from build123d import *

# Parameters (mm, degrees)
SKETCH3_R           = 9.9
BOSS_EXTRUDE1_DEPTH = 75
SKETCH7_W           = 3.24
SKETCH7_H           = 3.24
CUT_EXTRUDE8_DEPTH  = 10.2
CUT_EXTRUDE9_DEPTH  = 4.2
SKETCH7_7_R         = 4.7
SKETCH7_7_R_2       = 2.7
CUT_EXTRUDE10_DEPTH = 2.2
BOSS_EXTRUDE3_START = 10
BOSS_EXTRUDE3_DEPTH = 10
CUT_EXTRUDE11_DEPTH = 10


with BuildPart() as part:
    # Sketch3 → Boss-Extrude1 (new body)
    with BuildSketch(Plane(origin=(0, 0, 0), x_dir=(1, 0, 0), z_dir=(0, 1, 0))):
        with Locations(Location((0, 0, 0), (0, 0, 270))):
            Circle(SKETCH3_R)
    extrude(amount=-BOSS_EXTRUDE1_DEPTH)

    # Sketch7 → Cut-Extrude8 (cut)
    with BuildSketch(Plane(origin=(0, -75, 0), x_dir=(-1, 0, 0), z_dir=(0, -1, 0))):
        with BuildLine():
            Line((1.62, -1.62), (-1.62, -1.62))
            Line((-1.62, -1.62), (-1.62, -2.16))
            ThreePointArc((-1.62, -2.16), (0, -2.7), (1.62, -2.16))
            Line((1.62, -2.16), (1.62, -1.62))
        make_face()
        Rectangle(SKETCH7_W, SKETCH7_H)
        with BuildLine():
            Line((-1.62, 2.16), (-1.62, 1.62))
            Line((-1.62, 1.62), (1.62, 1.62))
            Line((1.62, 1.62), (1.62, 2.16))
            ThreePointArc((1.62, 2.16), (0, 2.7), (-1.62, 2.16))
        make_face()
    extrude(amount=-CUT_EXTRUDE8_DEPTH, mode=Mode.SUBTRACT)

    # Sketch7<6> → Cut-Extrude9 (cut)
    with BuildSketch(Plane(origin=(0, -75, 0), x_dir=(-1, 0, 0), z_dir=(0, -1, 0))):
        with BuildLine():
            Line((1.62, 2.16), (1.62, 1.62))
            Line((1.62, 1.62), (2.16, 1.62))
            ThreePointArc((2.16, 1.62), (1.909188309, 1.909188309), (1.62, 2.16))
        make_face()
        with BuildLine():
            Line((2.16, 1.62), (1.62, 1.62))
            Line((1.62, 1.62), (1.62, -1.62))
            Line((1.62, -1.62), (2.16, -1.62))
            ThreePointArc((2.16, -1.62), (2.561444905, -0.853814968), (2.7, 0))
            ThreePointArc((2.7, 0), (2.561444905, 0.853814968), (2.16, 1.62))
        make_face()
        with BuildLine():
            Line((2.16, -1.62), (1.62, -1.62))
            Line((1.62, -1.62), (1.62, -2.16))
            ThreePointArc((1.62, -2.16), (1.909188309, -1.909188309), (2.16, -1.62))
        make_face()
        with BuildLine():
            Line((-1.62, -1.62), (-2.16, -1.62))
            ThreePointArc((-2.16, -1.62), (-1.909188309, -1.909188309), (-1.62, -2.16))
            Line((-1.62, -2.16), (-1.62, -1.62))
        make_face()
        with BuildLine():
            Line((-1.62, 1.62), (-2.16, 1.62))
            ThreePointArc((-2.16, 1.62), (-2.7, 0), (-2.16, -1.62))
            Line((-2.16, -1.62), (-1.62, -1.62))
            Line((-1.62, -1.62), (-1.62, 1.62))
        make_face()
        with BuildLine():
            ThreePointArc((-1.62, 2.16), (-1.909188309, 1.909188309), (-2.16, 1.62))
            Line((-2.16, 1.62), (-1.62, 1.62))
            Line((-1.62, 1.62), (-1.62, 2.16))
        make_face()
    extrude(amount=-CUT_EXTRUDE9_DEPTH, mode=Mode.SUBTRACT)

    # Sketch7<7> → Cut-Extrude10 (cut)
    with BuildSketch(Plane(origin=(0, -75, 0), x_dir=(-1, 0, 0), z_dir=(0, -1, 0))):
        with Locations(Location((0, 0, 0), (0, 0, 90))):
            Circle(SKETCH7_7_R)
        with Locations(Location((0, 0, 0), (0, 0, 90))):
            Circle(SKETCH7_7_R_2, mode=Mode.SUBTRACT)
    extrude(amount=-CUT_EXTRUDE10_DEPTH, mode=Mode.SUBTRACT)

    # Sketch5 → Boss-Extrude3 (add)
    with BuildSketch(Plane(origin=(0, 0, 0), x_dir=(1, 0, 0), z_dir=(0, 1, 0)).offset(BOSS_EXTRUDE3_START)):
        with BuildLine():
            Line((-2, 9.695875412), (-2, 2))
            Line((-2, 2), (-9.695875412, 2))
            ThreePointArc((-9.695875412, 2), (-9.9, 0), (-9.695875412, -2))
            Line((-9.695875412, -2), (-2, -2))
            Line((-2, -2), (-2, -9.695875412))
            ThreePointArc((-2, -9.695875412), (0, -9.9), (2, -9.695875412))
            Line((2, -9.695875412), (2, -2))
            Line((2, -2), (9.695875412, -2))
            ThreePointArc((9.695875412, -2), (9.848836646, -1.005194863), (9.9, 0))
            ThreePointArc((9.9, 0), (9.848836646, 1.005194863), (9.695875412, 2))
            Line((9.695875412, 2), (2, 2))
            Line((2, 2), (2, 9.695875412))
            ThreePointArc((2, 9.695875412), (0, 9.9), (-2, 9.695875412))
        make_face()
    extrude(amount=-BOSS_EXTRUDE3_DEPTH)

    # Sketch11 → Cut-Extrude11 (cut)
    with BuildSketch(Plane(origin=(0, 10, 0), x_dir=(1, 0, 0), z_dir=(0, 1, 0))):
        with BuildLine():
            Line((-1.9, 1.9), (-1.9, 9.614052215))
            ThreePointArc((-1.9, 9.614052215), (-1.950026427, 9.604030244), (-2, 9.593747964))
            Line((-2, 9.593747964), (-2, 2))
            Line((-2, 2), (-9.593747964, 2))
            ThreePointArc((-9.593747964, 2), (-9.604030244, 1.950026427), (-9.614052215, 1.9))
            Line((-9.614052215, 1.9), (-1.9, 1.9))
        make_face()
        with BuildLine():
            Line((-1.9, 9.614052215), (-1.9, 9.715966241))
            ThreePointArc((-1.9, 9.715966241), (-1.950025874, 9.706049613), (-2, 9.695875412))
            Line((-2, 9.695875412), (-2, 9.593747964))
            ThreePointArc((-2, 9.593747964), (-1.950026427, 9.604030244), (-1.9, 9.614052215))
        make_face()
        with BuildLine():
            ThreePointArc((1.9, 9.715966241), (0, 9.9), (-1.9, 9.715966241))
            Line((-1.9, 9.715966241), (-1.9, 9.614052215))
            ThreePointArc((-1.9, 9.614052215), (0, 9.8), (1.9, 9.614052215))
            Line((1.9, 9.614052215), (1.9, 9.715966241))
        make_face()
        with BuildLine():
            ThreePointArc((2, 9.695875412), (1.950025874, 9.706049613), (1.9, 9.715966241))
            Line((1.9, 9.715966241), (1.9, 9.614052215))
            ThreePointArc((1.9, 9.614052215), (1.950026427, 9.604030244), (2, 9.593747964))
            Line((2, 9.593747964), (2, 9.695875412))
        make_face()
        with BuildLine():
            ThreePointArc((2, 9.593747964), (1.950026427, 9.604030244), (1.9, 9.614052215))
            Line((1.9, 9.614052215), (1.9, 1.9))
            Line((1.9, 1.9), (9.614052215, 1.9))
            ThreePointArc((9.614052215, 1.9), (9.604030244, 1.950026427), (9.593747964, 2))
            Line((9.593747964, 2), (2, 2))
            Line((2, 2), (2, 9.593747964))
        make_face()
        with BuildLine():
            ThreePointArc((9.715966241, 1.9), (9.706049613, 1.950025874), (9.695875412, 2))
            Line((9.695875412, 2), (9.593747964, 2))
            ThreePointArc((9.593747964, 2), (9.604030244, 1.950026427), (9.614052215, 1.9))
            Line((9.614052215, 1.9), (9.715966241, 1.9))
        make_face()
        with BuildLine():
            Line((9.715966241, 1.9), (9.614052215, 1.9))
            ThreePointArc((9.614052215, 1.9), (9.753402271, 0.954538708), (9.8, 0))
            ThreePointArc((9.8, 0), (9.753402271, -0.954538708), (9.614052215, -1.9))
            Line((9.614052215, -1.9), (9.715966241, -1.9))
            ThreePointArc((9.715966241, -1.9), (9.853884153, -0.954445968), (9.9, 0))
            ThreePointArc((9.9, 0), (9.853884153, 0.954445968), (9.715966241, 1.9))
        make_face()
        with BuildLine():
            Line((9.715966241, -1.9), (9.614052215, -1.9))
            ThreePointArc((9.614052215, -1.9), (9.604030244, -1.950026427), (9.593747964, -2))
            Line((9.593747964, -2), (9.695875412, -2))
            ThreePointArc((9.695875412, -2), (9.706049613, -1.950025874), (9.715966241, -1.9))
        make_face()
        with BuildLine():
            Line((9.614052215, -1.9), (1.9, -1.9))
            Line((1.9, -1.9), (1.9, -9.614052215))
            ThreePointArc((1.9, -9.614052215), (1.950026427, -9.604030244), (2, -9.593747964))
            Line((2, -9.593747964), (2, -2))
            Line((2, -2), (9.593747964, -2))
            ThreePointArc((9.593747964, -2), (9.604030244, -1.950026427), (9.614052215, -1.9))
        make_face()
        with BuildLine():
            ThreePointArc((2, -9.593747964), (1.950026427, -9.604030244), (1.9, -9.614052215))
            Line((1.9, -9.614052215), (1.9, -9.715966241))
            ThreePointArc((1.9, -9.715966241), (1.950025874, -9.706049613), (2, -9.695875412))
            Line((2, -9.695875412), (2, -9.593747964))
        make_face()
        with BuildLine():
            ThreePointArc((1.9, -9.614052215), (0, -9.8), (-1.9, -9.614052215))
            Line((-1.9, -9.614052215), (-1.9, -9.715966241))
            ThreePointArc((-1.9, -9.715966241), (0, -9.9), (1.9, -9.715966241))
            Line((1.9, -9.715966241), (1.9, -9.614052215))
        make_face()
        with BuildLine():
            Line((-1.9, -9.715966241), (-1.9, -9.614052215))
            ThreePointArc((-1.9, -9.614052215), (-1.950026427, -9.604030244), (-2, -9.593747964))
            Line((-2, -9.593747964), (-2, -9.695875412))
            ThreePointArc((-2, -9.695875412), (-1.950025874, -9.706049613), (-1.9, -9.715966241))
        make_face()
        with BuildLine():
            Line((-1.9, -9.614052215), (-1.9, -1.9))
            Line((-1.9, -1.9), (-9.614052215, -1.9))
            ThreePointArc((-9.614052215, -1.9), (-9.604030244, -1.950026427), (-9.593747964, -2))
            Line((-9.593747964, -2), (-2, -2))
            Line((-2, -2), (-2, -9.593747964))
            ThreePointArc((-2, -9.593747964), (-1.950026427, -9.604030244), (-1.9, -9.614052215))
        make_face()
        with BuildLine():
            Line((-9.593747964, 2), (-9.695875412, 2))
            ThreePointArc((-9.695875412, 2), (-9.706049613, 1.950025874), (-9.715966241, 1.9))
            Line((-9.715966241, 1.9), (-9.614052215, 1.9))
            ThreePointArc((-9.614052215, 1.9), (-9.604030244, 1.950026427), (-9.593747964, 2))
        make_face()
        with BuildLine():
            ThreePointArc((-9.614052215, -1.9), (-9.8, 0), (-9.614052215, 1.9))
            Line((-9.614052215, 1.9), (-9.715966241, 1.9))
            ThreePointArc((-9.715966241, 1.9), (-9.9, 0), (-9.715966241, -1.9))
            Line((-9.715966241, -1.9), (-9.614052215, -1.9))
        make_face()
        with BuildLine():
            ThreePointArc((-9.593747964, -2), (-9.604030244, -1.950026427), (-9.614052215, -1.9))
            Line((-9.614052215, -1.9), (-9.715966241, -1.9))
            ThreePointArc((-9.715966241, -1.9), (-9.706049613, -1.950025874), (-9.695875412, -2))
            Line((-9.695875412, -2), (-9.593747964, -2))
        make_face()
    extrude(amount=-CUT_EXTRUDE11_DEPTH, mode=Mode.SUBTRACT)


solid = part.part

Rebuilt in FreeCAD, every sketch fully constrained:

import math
import FreeCAD as App
import Part
import Sketcher
from FreeCAD import Vector
Q = App.Units.Quantity

doc = App.newDocument("Part")
params = doc.addObject("Spreadsheet::Sheet", "Params")
for row, (alias, value) in enumerate([
    ("sketch1_diameter", "19.8 mm"),
    ("pad1_length", "75 mm"),
    ("sketch2_radius", "2.7 mm"),
    ("sketch2_height", "4.32 mm"),
    ("pocket1_length", "10.2 mm"),
    ("sketch3_radius", "2.7 mm"),
    ("sketch3_height", "4.32 mm"),
    ("pocket2_length", "4.2 mm"),
    ("sketch4_diameter", "9.4 mm"),
    ("sketch4_diameter2", "5.4 mm"),
    ("pocket3_length", "2.2 mm"),
    ("sketch5_radius", "9.9 mm"),
    ("pad2_length", "10 mm"),
    ("sketch6_radius", "9.9 mm"),
    ("sketch6_radius2", "9.8 mm"),
    ("pocket4_length", "10 mm"),
], start=1):
    params.set(f"A{row}", alias)
    params.set(f"B{row}", "=" + value)
    params.setAlias(f"B{row}", alias)

body = doc.addObject("PartDesign::Body", "Body")

# Sketch on XZ plane
sketch1 = body.newObject("Sketcher::SketchObject", "Sketch")
sketch1.AttachmentSupport = (doc.getObject("XZ_Plane"), [""])
sketch1.MapMode = "FlatFace"
sketch1.addGeometry(Part.Circle(Vector(0, 0, 0), Vector(0, 0, 1), 10), False)
sketch1.addConstraint(Sketcher.Constraint("Coincident", 0, 3, -1, 1))
sketch1.addConstraint(Sketcher.Constraint("Diameter", 0, Q("19.8 mm")))
sketch1.setExpression("Constraints[1]", "Params.sketch1_diameter")
pad1 = body.newObject("PartDesign::Pad", "Pad")
pad1.Profile = sketch1
pad1.setExpression("Length", "Params.pad1_length")

# Sketch on XZ plane
sketch2 = body.newObject("Sketcher::SketchObject", "Sketch001")
sketch2.AttachmentSupport = (doc.getObject("XZ_Plane"), [""])
sketch2.MapMode = "FlatFace"
sketch2.AttachmentOffset = App.Placement(Vector(0, 0, 75), App.Rotation())
sketch2.addGeometry(Part.ArcOfCircle(Part.Circle(Vector(0, 0, 0), Vector(0, 0, 1), 2.7), math.radians(53), math.radians(127)), False)
sketch2.addGeometry(Part.LineSegment(Vector(-1.6, 2.2, 0), Vector(-1.6, -2.2, 0)), False)
sketch2.addGeometry(Part.ArcOfCircle(Part.Circle(Vector(0, 0, 0), Vector(0, 0, 1), 2.7), math.radians(-127), math.radians(-53)), False)
sketch2.addGeometry(Part.LineSegment(Vector(1.6, -2.2, 0), Vector(1.6, 2.2, 0)), False)
sketch2.addConstraint(Sketcher.Constraint("Coincident", 0, 2, 1, 1))
sketch2.addConstraint(Sketcher.Constraint("Coincident", 1, 2, 2, 1))
sketch2.addConstraint(Sketcher.Constraint("Coincident", 2, 2, 3, 1))
sketch2.addConstraint(Sketcher.Constraint("Coincident", 3, 2, 0, 1))
sketch2.addConstraint(Sketcher.Constraint("Vertical", 1))
sketch2.addConstraint(Sketcher.Constraint("Vertical", 3))
sketch2.addConstraint(Sketcher.Constraint("Coincident", 0, 3, -1, 1))
sketch2.addConstraint(Sketcher.Constraint("Coincident", 2, 3, -1, 1))
sketch2.addConstraint(Sketcher.Constraint("Equal", 0, 2))
sketch2.addConstraint(Sketcher.Constraint("Horizontal", 1, 2, 2, 2))
sketch2.addConstraint(Sketcher.Constraint("Radius", 0, Q("2.7 mm")))
sketch2.addConstraint(Sketcher.Constraint("DistanceY", 1, 2, 1, 1, Q("4.32 mm")))
sketch2.setExpression("Constraints[10]", "Params.sketch2_radius")
sketch2.setExpression("Constraints[11]", "Params.sketch2_height")
pocket1 = body.newObject("PartDesign::Pocket", "Pocket")
pocket1.Profile = sketch2
pocket1.setExpression("Length", "Params.pocket1_length")

# Sketch on XZ plane
sketch3 = body.newObject("Sketcher::SketchObject", "Sketch002")
sketch3.AttachmentSupport = (doc.getObject("XZ_Plane"), [""])
sketch3.MapMode = "FlatFace"
sketch3.AttachmentOffset = App.Placement(Vector(0, 0, 75), App.Rotation())
sketch3.addGeometry(Part.LineSegment(Vector(-1.6, -2.2, 0), Vector(-1.6, 2.2, 0)), False)
sketch3.addGeometry(Part.ArcOfCircle(Part.Circle(Vector(0, 0, 0), Vector(0, 0, 1), 2.7), math.radians(126.87), math.radians(143.13)), False)
sketch3.addGeometry(Part.ArcOfCircle(Part.Circle(Vector(0, 0, 0), Vector(0, 0, 1), 2.7), math.radians(143), math.radians(180)), False)
sketch3.addGeometry(Part.ArcOfCircle(Part.Circle(Vector(0, 0, 0), Vector(0, 0, 1), 2.7), math.radians(180), math.radians(217)), False)
sketch3.addGeometry(Part.ArcOfCircle(Part.Circle(Vector(0, 0, 0), Vector(0, 0, 1), 2.7), math.radians(-143.13), math.radians(-126.87)), False)
sketch3.addGeometry(Part.ArcOfCircle(Part.Circle(Vector(0, 0, 0), Vector(0, 0, 1), 2.7), math.radians(36.87), math.radians(53.13)), False)
sketch3.addGeometry(Part.LineSegment(Vector(1.6, 2.2, 0), Vector(1.6, -2.2, 0)), False)
sketch3.addGeometry(Part.ArcOfCircle(Part.Circle(Vector(0, 0, 0), Vector(0, 0, 1), 2.7), math.radians(-53.13), math.radians(-36.87)), False)
sketch3.addGeometry(Part.ArcOfCircle(Part.Circle(Vector(0, 0, 0), Vector(0, 0, 1), 2.7), math.radians(-37), math.radians(37)), False)
sketch3.addConstraint(Sketcher.Constraint("Coincident", 0, 2, 1, 1))
sketch3.addConstraint(Sketcher.Constraint("Tangent", 1, 2, 2, 1))
sketch3.addConstraint(Sketcher.Constraint("Tangent", 2, 2, 3, 1))
sketch3.addConstraint(Sketcher.Constraint("Tangent", 3, 2, 4, 1))
sketch3.addConstraint(Sketcher.Constraint("Coincident", 4, 2, 0, 1))
sketch3.addConstraint(Sketcher.Constraint("Coincident", 5, 2, 6, 1))
sketch3.addConstraint(Sketcher.Constraint("Coincident", 6, 2, 7, 1))
sketch3.addConstraint(Sketcher.Constraint("Tangent", 7, 2, 8, 1))
sketch3.addConstraint(Sketcher.Constraint("Tangent", 8, 2, 5, 1))
sketch3.addConstraint(Sketcher.Constraint("Vertical", 0))
sketch3.addConstraint(Sketcher.Constraint("Vertical", 6))
sketch3.addConstraint(Sketcher.Constraint("Coincident", 1, 3, -1, 1))
sketch3.addConstraint(Sketcher.Constraint("Coincident", 3, 3, -1, 1))
sketch3.addConstraint(Sketcher.Constraint("Coincident", 5, 3, -1, 1))
sketch3.addConstraint(Sketcher.Constraint("Coincident", 7, 3, -1, 1))
sketch3.addConstraint(Sketcher.Constraint("Equal", 3, 4))
sketch3.addConstraint(Sketcher.Constraint("Equal", 4, 5))
sketch3.addConstraint(Sketcher.Constraint("PointOnObject", 2, 2, -1))
sketch3.addConstraint(Sketcher.Constraint("Horizontal", 0, 2, 5, 2))
sketch3.addConstraint(Sketcher.Constraint("Horizontal", 3, 2, 7, 2))
sketch3.addConstraint(Sketcher.Constraint("Horizontal", 1, 2, 8, 2))
sketch3.addConstraint(Sketcher.Constraint("Vertical", 1, 2, 3, 2))
sketch3.addConstraint(Sketcher.Constraint("Radius", 1, Q("2.7 mm")))
sketch3.addConstraint(Sketcher.Constraint("DistanceY", 0, 1, 0, 2, Q("4.32 mm")))
sketch3.addConstraint(Sketcher.Constraint("DistanceX", 1, 2, -1, 1, Q("2.16 mm")))
sketch3.setExpression("Constraints[22]", "Params.sketch3_radius")
sketch3.setExpression("Constraints[23]", "Params.sketch3_height")
pocket2 = body.newObject("PartDesign::Pocket", "Pocket001")
pocket2.Profile = sketch3
pocket2.setExpression("Length", "Params.pocket2_length")

# Sketch on XZ plane
sketch4 = body.newObject("Sketcher::SketchObject", "Sketch003")
sketch4.AttachmentSupport = (doc.getObject("XZ_Plane"), [""])
sketch4.MapMode = "FlatFace"
sketch4.AttachmentOffset = App.Placement(Vector(0, 0, 75), App.Rotation())
sketch4.addGeometry(Part.Circle(Vector(0, 0, 0), Vector(0, 0, 1), 4.7), False)
sketch4.addGeometry(Part.Circle(Vector(0, 0, 0), Vector(0, 0, 1), 2.7), False)
sketch4.addConstraint(Sketcher.Constraint("Coincident", 0, 3, -1, 1))
sketch4.addConstraint(Sketcher.Constraint("Coincident", 1, 3, -1, 1))
sketch4.addConstraint(Sketcher.Constraint("Diameter", 0, Q("9.4 mm")))
sketch4.addConstraint(Sketcher.Constraint("Diameter", 1, Q("5.4 mm")))
sketch4.setExpression("Constraints[2]", "Params.sketch4_diameter")
sketch4.setExpression("Constraints[3]", "Params.sketch4_diameter2")
pocket3 = body.newObject("PartDesign::Pocket", "Pocket002")
pocket3.Profile = sketch4
pocket3.setExpression("Length", "Params.pocket3_length")

# Sketch on XZ plane
sketch5 = body.newObject("Sketcher::SketchObject", "Sketch004")
sketch5.AttachmentSupport = (doc.getObject("XZ_Plane"), [""])
sketch5.MapMode = "FlatFace"
sketch5.AttachmentOffset = App.Placement(Vector(0, 0, -10), App.Rotation())
sketch5.addGeometry(Part.LineSegment(Vector(-2, -9.7, 0), Vector(-2, -2, 0)), False)
sketch5.addGeometry(Part.LineSegment(Vector(-2, -2, 0), Vector(-9.7, -2, 0)), False)
sketch5.addGeometry(Part.ArcOfCircle(Part.Circle(Vector(0, 0, 0), Vector(0, 0, 1), 9.9), math.radians(168), math.radians(192)), False)
sketch5.addGeometry(Part.LineSegment(Vector(-9.7, 2, 0), Vector(-2, 2, 0)), False)
sketch5.addGeometry(Part.LineSegment(Vector(-2, 2, 0), Vector(-2, 9.7, 0)), False)
sketch5.addGeometry(Part.ArcOfCircle(Part.Circle(Vector(0, 0, 0), Vector(0, 0, 1), 9.9), math.radians(78), math.radians(102)), False)
sketch5.addGeometry(Part.LineSegment(Vector(2, 9.7, 0), Vector(2, 2, 0)), False)
sketch5.addGeometry(Part.LineSegment(Vector(2, 2, 0), Vector(9.7, 2, 0)), False)
sketch5.addGeometry(Part.ArcOfCircle(Part.Circle(Vector(0, 0, 0), Vector(0, 0, 1), 9.9), math.radians(0), math.radians(11.66)), False)
sketch5.addGeometry(Part.ArcOfCircle(Part.Circle(Vector(0, 0, 0), Vector(0, 0, 1), 9.9), math.radians(-11.66), math.radians(0)), False)
sketch5.addGeometry(Part.LineSegment(Vector(9.7, -2, 0), Vector(2, -2, 0)), False)
sketch5.addGeometry(Part.LineSegment(Vector(2, -2, 0), Vector(2, -9.7, 0)), False)
sketch5.addGeometry(Part.ArcOfCircle(Part.Circle(Vector(0, 0, 0), Vector(0, 0, 1), 9.9), math.radians(-102), math.radians(-78)), False)
sketch5.addConstraint(Sketcher.Constraint("Coincident", 0, 2, 1, 1))
sketch5.addConstraint(Sketcher.Constraint("Coincident", 1, 2, 2, 2))
sketch5.addConstraint(Sketcher.Constraint("Coincident", 2, 1, 3, 1))
sketch5.addConstraint(Sketcher.Constraint("Coincident", 3, 2, 4, 1))
sketch5.addConstraint(Sketcher.Constraint("Coincident", 4, 2, 5, 2))
sketch5.addConstraint(Sketcher.Constraint("Coincident", 5, 1, 6, 1))
sketch5.addConstraint(Sketcher.Constraint("Coincident", 6, 2, 7, 1))
sketch5.addConstraint(Sketcher.Constraint("Coincident", 7, 2, 8, 2))
sketch5.addConstraint(Sketcher.Constraint("Tangent", 8, 1, 9, 2))
sketch5.addConstraint(Sketcher.Constraint("Coincident", 9, 1, 10, 1))
sketch5.addConstraint(Sketcher.Constraint("Coincident", 10, 2, 11, 1))
sketch5.addConstraint(Sketcher.Constraint("Coincident", 11, 2, 12, 2))
sketch5.addConstraint(Sketcher.Constraint("Coincident", 12, 1, 0, 1))
sketch5.addConstraint(Sketcher.Constraint("Vertical", 0))
sketch5.addConstraint(Sketcher.Constraint("Horizontal", 1))
sketch5.addConstraint(Sketcher.Constraint("Horizontal", 3))
sketch5.addConstraint(Sketcher.Constraint("Vertical", 4))
sketch5.addConstraint(Sketcher.Constraint("Vertical", 6))
sketch5.addConstraint(Sketcher.Constraint("Horizontal", 7))
sketch5.addConstraint(Sketcher.Constraint("Horizontal", 10))
sketch5.addConstraint(Sketcher.Constraint("Vertical", 11))
sketch5.addConstraint(Sketcher.Constraint("Coincident", 2, 3, -1, 1))
sketch5.addConstraint(Sketcher.Constraint("Coincident", 5, 3, -1, 1))
sketch5.addConstraint(Sketcher.Constraint("Coincident", 8, 3, -1, 1))
sketch5.addConstraint(Sketcher.Constraint("Coincident", 12, 3, -1, 1))
sketch5.addConstraint(Sketcher.Constraint("Equal", 2, 5))
sketch5.addConstraint(Sketcher.Constraint("Equal", 5, 8))
sketch5.addConstraint(Sketcher.Constraint("Equal", 8, 9))
sketch5.addConstraint(Sketcher.Constraint("Equal", 9, 12))
sketch5.addConstraint(Sketcher.Constraint("Symmetric", 0, 2, 6, 2, -1, 1))
sketch5.addConstraint(Sketcher.Constraint("Symmetric", 3, 2, 10, 2, -1, 1))
sketch5.addConstraint(Sketcher.Constraint("Symmetric", 3, 2, 6, 2, -2))
sketch5.addConstraint(Sketcher.Constraint("PointOnObject", 8, 1, -1))
sketch5.addConstraint(Sketcher.Constraint("Equal", 10, 0))
sketch5.addConstraint(Sketcher.Constraint("Radius", 2, Q("9.9 mm")))
sketch5.addConstraint(Sketcher.Constraint("DistanceX", 0, 2, -1, 1, Q("2 mm")))
sketch5.setExpression("Constraints[34]", "Params.sketch5_radius")
pad2 = body.newObject("PartDesign::Pad", "Pad001")
pad2.Profile = sketch5
pad2.setExpression("Length", "Params.pad2_length")

# Sketch on XZ plane
sketch6 = body.newObject("Sketcher::SketchObject", "Sketch005")
sketch6.AttachmentSupport = (doc.getObject("XZ_Plane"), [""])
sketch6.MapMode = "FlatFace"
sketch6.AttachmentOffset = App.Placement(Vector(0, 0, -10), App.Rotation())
sketch6.addGeometry(Part.ArcOfCircle(Part.Circle(Vector(0, 0, 0), Vector(0, 0, 1), 9.9), math.radians(169), math.radians(191)), False)
sketch6.addGeometry(Part.ArcOfCircle(Part.Circle(Vector(0, 0, 0), Vector(0, 0, 1), 9.9), math.radians(168.34), math.radians(168.94)), False)
sketch6.addGeometry(Part.LineSegment(Vector(-9.7, 2, 0), Vector(-2, 2, 0)), False)
sketch6.addGeometry(Part.LineSegment(Vector(-2, 2, 0), Vector(-2, 9.7, 0)), False)
sketch6.addGeometry(Part.ArcOfCircle(Part.Circle(Vector(0, 0, 0), Vector(0, 0, 1), 9.9), math.radians(101.06), math.radians(101.66)), False)
sketch6.addGeometry(Part.ArcOfCircle(Part.Circle(Vector(0, 0, 0), Vector(0, 0, 1), 9.9), math.radians(79), math.radians(101)), False)
sketch6.addGeometry(Part.ArcOfCircle(Part.Circle(Vector(0, 0, 0), Vector(0, 0, 1), 9.9), math.radians(78.34), math.radians(78.94)), False)
sketch6.addGeometry(Part.LineSegment(Vector(2, 9.7, 0), Vector(2, 2, 0)), False)
sketch6.addGeometry(Part.LineSegment(Vector(2, 2, 0), Vector(9.7, 2, 0)), False)
sketch6.addGeometry(Part.ArcOfCircle(Part.Circle(Vector(0, 0, 0), Vector(0, 0, 1), 9.9), math.radians(11.06), math.radians(11.66)), False)
sketch6.addGeometry(Part.ArcOfCircle(Part.Circle(Vector(0, 0, 0), Vector(0, 0, 1), 9.9), math.radians(0), math.radians(11.06)), False)
sketch6.addGeometry(Part.ArcOfCircle(Part.Circle(Vector(0, 0, 0), Vector(0, 0, 1), 9.9), math.radians(-11.06), math.radians(0)), False)
sketch6.addGeometry(Part.ArcOfCircle(Part.Circle(Vector(0, 0, 0), Vector(0, 0, 1), 9.9), math.radians(-11.66), math.radians(-11.06)), False)
sketch6.addGeometry(Part.LineSegment(Vector(9.7, -2, 0), Vector(2, -2, 0)), False)
sketch6.addGeometry(Part.LineSegment(Vector(2, -2, 0), Vector(2, -9.7, 0)), False)
sketch6.addGeometry(Part.ArcOfCircle(Part.Circle(Vector(0, 0, 0), Vector(0, 0, 1), 9.9), math.radians(-78.94), math.radians(-78.34)), False)
sketch6.addGeometry(Part.ArcOfCircle(Part.Circle(Vector(0, 0, 0), Vector(0, 0, 1), 9.9), math.radians(-101), math.radians(-79)), False)
sketch6.addGeometry(Part.ArcOfCircle(Part.Circle(Vector(0, 0, 0), Vector(0, 0, 1), 9.9), math.radians(-101.66), math.radians(-101.06)), False)
sketch6.addGeometry(Part.LineSegment(Vector(-2, -9.7, 0), Vector(-2, -2, 0)), False)
sketch6.addGeometry(Part.LineSegment(Vector(-2, -2, 0), Vector(-9.7, -2, 0)), False)
sketch6.addGeometry(Part.ArcOfCircle(Part.Circle(Vector(0, 0, 0), Vector(0, 0, 1), 9.9), math.radians(-168.94), math.radians(-168.34)), False)
sketch6.addGeometry(Part.LineSegment(Vector(-1.9, 1.9, 0), Vector(-9.61, 1.9, 0)), False)
sketch6.addGeometry(Part.ArcOfCircle(Part.Circle(Vector(0, 0, 0), Vector(0, 0, 1), 9.8), math.radians(169), math.radians(191)), False)
sketch6.addGeometry(Part.LineSegment(Vector(-9.61, -1.9, 0), Vector(-1.9, -1.9, 0)), False)
sketch6.addGeometry(Part.LineSegment(Vector(-1.9, -1.9, 0), Vector(-1.9, -9.61, 0)), False)
sketch6.addGeometry(Part.ArcOfCircle(Part.Circle(Vector(0, 0, 0), Vector(0, 0, 1), 9.8), math.radians(-101), math.radians(-79)), False)
sketch6.addGeometry(Part.LineSegment(Vector(1.9, -9.61, 0), Vector(1.9, -1.9, 0)), False)
sketch6.addGeometry(Part.LineSegment(Vector(1.9, -1.9, 0), Vector(9.61, -1.9, 0)), False)
sketch6.addGeometry(Part.ArcOfCircle(Part.Circle(Vector(0, 0, 0), Vector(0, 0, 1), 9.8), math.radians(-11.18), math.radians(0)), False)
sketch6.addGeometry(Part.ArcOfCircle(Part.Circle(Vector(0, 0, 0), Vector(0, 0, 1), 9.8), math.radians(0), math.radians(11.18)), False)
sketch6.addGeometry(Part.LineSegment(Vector(9.61, 1.9, 0), Vector(1.9, 1.9, 0)), False)
sketch6.addGeometry(Part.LineSegment(Vector(1.9, 1.9, 0), Vector(1.9, 9.61, 0)), False)
sketch6.addGeometry(Part.ArcOfCircle(Part.Circle(Vector(0, 0, 0), Vector(0, 0, 1), 9.8), math.radians(79), math.radians(101)), False)
sketch6.addGeometry(Part.LineSegment(Vector(-1.9, 9.61, 0), Vector(-1.9, 1.9, 0)), False)
sketch6.addConstraint(Sketcher.Constraint("Tangent", 0, 1, 1, 2))
sketch6.addConstraint(Sketcher.Constraint("Coincident", 1, 1, 2, 1))
sketch6.addConstraint(Sketcher.Constraint("Coincident", 2, 2, 3, 1))
sketch6.addConstraint(Sketcher.Constraint("Coincident", 3, 2, 4, 2))
sketch6.addConstraint(Sketcher.Constraint("Tangent", 4, 1, 5, 2))
sketch6.addConstraint(Sketcher.Constraint("Tangent", 5, 1, 6, 2))
sketch6.addConstraint(Sketcher.Constraint("Coincident", 6, 1, 7, 1))
sketch6.addConstraint(Sketcher.Constraint("Coincident", 7, 2, 8, 1))
sketch6.addConstraint(Sketcher.Constraint("Coincident", 8, 2, 9, 2))
sketch6.addConstraint(Sketcher.Constraint("Tangent", 9, 1, 10, 2))
sketch6.addConstraint(Sketcher.Constraint("Tangent", 10, 1, 11, 2))
sketch6.addConstraint(Sketcher.Constraint("Tangent", 11, 1, 12, 2))
sketch6.addConstraint(Sketcher.Constraint("Coincident", 12, 1, 13, 1))
sketch6.addConstraint(Sketcher.Constraint("Coincident", 13, 2, 14, 1))
sketch6.addConstraint(Sketcher.Constraint("Coincident", 14, 2, 15, 2))
sketch6.addConstraint(Sketcher.Constraint("Tangent", 15, 1, 16, 2))
sketch6.addConstraint(Sketcher.Constraint("Tangent", 16, 1, 17, 2))
sketch6.addConstraint(Sketcher.Constraint("Coincident", 17, 1, 18, 1))
sketch6.addConstraint(Sketcher.Constraint("Coincident", 18, 2, 19, 1))
sketch6.addConstraint(Sketcher.Constraint("Coincident", 19, 2, 20, 2))
sketch6.addConstraint(Sketcher.Constraint("Tangent", 20, 1, 0, 2))
sketch6.addConstraint(Sketcher.Constraint("Coincident", 21, 2, 22, 1))
sketch6.addConstraint(Sketcher.Constraint("Coincident", 22, 2, 23, 1))
sketch6.addConstraint(Sketcher.Constraint("Coincident", 23, 2, 24, 1))
sketch6.addConstraint(Sketcher.Constraint("Coincident", 24, 2, 25, 1))
sketch6.addConstraint(Sketcher.Constraint("Coincident", 25, 2, 26, 1))
sketch6.addConstraint(Sketcher.Constraint("Coincident", 26, 2, 27, 1))
sketch6.addConstraint(Sketcher.Constraint("Coincident", 27, 2, 28, 1))
sketch6.addConstraint(Sketcher.Constraint("Tangent", 28, 2, 29, 1))
sketch6.addConstraint(Sketcher.Constraint("Coincident", 29, 2, 30, 1))
sketch6.addConstraint(Sketcher.Constraint("Coincident", 30, 2, 31, 1))
sketch6.addConstraint(Sketcher.Constraint("Coincident", 31, 2, 32, 1))
sketch6.addConstraint(Sketcher.Constraint("Coincident", 32, 2, 33, 1))
sketch6.addConstraint(Sketcher.Constraint("Coincident", 33, 2, 21, 1))
sketch6.addConstraint(Sketcher.Constraint("Horizontal", 2))
sketch6.addConstraint(Sketcher.Constraint("Vertical", 3))
sketch6.addConstraint(Sketcher.Constraint("Vertical", 7))
sketch6.addConstraint(Sketcher.Constraint("Horizontal", 8))
sketch6.addConstraint(Sketcher.Constraint("Horizontal", 13))
sketch6.addConstraint(Sketcher.Constraint("Vertical", 14))
sketch6.addConstraint(Sketcher.Constraint("Vertical", 18))
sketch6.addConstraint(Sketcher.Constraint("Horizontal", 19))
sketch6.addConstraint(Sketcher.Constraint("Horizontal", 21))
sketch6.addConstraint(Sketcher.Constraint("Horizontal", 23))
sketch6.addConstraint(Sketcher.Constraint("Vertical", 24))
sketch6.addConstraint(Sketcher.Constraint("Vertical", 26))
sketch6.addConstraint(Sketcher.Constraint("Horizontal", 27))
sketch6.addConstraint(Sketcher.Constraint("Horizontal", 30))
sketch6.addConstraint(Sketcher.Constraint("Vertical", 31))
sketch6.addConstraint(Sketcher.Constraint("Vertical", 33))
sketch6.addConstraint(Sketcher.Constraint("Coincident", 0, 3, -1, 1))
sketch6.addConstraint(Sketcher.Constraint("Coincident", 4, 3, -1, 1))
sketch6.addConstraint(Sketcher.Constraint("Coincident", 6, 3, -1, 1))
sketch6.addConstraint(Sketcher.Constraint("Coincident", 9, 3, -1, 1))
sketch6.addConstraint(Sketcher.Constraint("Coincident", 11, 3, -1, 1))
sketch6.addConstraint(Sketcher.Constraint("Coincident", 15, 3, -1, 1))
sketch6.addConstraint(Sketcher.Constraint("Coincident", 17, 3, -1, 1))
sketch6.addConstraint(Sketcher.Constraint("Coincident", 22, 3, -1, 1))
sketch6.addConstraint(Sketcher.Constraint("Coincident", 25, 3, -1, 1))
sketch6.addConstraint(Sketcher.Constraint("Coincident", 28, 3, -1, 1))
sketch6.addConstraint(Sketcher.Constraint("Coincident", 32, 3, -1, 1))
sketch6.addConstraint(Sketcher.Constraint("Equal", 1, 4))
sketch6.addConstraint(Sketcher.Constraint("Equal", 0, 5))
sketch6.addConstraint(Sketcher.Constraint("Equal", 6, 9))
sketch6.addConstraint(Sketcher.Constraint("Equal", 9, 12))
sketch6.addConstraint(Sketcher.Constraint("Equal", 12, 15))
sketch6.addConstraint(Sketcher.Constraint("Equal", 17, 20))
sketch6.addConstraint(Sketcher.Constraint("Equal", 22, 25))
sketch6.addConstraint(Sketcher.Constraint("Equal", 25, 28))
sketch6.addConstraint(Sketcher.Constraint("Equal", 28, 29))
sketch6.addConstraint(Sketcher.Constraint("Equal", 29, 32))
sketch6.addConstraint(Sketcher.Constraint("Symmetric", 2, 2, 13, 2, -1, 1))
sketch6.addConstraint(Sketcher.Constraint("Symmetric", 7, 2, 18, 2, -1, 1))
sketch6.addConstraint(Sketcher.Constraint("Symmetric", 23, 2, 30, 2, -1, 1))
sketch6.addConstraint(Sketcher.Constraint("Symmetric", 26, 2, 33, 2, -1, 1))
sketch6.addConstraint(Sketcher.Constraint("Symmetric", 2, 2, 7, 2, -2))
sketch6.addConstraint(Sketcher.Constraint("Symmetric", 23, 2, 26, 2, -2))
sketch6.addConstraint(Sketcher.Constraint("PointOnObject", 10, 1, -1))
sketch6.addConstraint(Sketcher.Constraint("PointOnObject", 28, 2, -1))
sketch6.addConstraint(Sketcher.Constraint("Horizontal", 4, 1, 5, 1))
sketch6.addConstraint(Sketcher.Constraint("Horizontal", 0, 1, 9, 1))
sketch6.addConstraint(Sketcher.Constraint("Horizontal", 15, 1, 16, 1))
sketch6.addConstraint(Sketcher.Constraint("Horizontal", 11, 1, 20, 1))
sketch6.addConstraint(Sketcher.Constraint("Horizontal", 9, 1, 21, 2))
sketch6.addConstraint(Sketcher.Constraint("Horizontal", 20, 1, 22, 2))
sketch6.addConstraint(Sketcher.Constraint("Vertical", 5, 1, 15, 1))
sketch6.addConstraint(Sketcher.Constraint("Vertical", 16, 1, 23, 2))
sketch6.addConstraint(Sketcher.Constraint("Equal", 19, 3))
sketch6.addConstraint(Sketcher.Constraint("Equal", 30, 24))
sketch6.addConstraint(Sketcher.Constraint("Radius", 0, Q("9.9 mm")))
sketch6.addConstraint(Sketcher.Constraint("Radius", 22, Q("9.8 mm")))
sketch6.addConstraint(Sketcher.Constraint("DistanceY", -1, 1, 1, 1, Q("2 mm")))
sketch6.addConstraint(Sketcher.Constraint("DistanceY", -1, 1, 0, 1, Q("1.9 mm")))
sketch6.setExpression("Constraints[89]", "Params.sketch6_radius")
sketch6.setExpression("Constraints[90]", "Params.sketch6_radius2")
pocket4 = body.newObject("PartDesign::Pocket", "Pocket003")
pocket4.Profile = sketch6
pocket4.setExpression("Length", "Params.pocket4_length")
pocket4.Reversed = True

doc.recompute()
